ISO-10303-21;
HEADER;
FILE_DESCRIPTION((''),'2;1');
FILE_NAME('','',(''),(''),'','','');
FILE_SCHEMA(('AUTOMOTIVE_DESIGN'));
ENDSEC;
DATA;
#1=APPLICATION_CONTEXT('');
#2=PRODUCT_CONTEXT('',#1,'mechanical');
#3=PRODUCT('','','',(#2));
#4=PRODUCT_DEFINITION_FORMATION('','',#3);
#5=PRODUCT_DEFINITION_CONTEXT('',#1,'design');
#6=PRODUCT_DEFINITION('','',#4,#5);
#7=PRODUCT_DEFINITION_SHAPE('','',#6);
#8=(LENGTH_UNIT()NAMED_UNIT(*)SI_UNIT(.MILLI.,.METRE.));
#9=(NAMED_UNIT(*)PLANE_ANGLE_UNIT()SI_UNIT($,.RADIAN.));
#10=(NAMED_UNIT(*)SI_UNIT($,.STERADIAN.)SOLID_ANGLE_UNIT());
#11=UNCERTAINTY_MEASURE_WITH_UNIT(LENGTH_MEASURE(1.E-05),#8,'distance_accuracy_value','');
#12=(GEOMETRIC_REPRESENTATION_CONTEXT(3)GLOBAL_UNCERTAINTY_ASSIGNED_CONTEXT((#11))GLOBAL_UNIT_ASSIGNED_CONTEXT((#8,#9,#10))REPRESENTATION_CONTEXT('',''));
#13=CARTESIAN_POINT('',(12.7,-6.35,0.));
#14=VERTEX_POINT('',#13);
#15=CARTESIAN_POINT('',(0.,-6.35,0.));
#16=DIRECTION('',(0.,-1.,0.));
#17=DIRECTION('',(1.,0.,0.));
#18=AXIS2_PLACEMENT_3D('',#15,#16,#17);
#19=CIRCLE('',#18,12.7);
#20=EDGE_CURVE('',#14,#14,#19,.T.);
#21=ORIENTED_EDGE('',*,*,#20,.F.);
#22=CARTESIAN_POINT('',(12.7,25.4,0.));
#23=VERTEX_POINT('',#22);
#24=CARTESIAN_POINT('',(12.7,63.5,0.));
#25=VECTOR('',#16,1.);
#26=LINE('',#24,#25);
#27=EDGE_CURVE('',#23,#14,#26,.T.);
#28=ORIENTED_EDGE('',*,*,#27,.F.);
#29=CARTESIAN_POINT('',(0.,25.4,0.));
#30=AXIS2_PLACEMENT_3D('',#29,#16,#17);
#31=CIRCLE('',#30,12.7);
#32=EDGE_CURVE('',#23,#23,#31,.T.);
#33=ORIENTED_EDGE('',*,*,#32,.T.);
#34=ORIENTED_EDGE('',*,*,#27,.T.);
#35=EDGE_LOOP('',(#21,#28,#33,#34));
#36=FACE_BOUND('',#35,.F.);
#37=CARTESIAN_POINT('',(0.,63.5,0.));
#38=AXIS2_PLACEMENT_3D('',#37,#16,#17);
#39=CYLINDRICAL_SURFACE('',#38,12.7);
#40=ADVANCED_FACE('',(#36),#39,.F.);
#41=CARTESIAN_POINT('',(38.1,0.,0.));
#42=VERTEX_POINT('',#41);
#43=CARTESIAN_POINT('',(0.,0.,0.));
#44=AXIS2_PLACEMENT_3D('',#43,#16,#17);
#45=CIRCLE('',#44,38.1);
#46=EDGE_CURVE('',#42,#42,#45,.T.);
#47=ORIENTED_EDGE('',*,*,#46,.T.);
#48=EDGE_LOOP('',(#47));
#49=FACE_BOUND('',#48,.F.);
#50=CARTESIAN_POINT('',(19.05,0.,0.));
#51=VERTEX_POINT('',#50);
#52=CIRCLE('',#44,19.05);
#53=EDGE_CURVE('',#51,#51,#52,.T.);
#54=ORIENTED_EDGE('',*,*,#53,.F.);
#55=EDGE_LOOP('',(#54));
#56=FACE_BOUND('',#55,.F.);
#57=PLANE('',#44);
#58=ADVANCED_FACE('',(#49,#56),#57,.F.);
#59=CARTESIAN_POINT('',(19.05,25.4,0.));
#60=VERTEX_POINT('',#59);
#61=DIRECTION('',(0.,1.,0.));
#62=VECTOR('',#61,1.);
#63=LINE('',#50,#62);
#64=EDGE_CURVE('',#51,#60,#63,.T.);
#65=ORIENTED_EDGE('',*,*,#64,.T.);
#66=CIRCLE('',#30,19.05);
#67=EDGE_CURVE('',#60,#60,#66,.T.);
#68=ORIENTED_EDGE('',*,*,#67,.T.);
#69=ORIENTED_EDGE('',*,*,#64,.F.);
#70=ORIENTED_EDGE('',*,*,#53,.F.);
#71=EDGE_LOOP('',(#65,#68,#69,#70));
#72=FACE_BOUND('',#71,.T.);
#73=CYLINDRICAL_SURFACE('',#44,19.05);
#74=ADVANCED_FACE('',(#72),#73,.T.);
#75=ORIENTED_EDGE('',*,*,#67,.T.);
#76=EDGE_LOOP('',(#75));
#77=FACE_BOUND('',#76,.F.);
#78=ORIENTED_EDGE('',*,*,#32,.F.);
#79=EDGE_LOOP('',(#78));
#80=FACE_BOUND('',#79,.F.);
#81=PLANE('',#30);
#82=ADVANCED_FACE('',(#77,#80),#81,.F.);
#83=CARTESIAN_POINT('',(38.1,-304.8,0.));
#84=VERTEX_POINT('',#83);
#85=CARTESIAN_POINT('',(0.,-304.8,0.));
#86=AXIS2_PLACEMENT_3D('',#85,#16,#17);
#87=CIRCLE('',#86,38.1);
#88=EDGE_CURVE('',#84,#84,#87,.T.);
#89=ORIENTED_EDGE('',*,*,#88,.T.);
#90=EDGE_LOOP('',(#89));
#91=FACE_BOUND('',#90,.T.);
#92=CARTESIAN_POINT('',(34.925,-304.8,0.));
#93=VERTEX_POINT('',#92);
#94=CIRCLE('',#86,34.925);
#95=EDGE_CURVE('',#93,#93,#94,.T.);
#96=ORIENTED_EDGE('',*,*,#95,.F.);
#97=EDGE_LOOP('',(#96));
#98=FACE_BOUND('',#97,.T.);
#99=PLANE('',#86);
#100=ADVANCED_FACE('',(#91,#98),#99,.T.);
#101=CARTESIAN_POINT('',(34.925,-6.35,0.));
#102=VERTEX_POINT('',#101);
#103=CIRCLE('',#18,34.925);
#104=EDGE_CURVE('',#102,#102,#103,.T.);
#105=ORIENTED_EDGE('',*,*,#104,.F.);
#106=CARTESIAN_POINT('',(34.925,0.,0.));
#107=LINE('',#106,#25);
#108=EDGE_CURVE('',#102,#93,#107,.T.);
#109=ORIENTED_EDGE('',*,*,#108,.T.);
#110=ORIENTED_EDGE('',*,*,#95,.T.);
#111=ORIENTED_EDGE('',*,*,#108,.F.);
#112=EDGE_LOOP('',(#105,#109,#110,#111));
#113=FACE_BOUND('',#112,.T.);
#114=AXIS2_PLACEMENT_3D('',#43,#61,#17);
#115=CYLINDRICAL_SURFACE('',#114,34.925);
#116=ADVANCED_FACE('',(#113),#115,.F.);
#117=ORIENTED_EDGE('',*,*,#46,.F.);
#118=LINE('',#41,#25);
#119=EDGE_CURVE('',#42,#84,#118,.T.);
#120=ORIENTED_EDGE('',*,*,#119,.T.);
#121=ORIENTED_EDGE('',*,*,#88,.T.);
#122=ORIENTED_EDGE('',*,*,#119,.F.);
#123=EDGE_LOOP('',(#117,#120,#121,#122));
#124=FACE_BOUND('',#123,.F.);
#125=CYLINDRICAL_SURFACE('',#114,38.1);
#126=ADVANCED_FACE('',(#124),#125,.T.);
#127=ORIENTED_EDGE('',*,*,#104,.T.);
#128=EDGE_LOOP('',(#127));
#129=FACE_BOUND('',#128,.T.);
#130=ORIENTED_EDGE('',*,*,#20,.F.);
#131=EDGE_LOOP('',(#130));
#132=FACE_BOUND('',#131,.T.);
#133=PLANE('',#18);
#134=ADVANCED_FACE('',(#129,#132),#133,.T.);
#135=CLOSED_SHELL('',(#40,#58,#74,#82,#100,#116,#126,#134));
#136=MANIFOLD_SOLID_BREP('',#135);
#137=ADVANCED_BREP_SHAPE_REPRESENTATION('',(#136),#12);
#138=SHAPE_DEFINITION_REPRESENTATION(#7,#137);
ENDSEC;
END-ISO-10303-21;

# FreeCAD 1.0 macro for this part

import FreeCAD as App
import Part
import Sketcher
Q = App.Units.Quantity

doc = App.newDocument("Part")
body = doc.addObject("PartDesign::Body", "Body")

# Sketch on XZ plane
sketch1 = doc.addObject("Sketcher::SketchObject", "Sketch")
body.addObject(sketch1)
sketch1.AttachmentSupport = (doc.XZ_Plane, [""])
sketch1.MapMode = "FlatFace"
sketch1.addGeometry(Part.Circle(App.Vector(0, 0, 0), App.Vector(0, 0, 1), 38), False)
sketch1.addGeometry(Part.Circle(App.Vector(0, 0, 0), App.Vector(0, 0, 1), 35), False)
sketch1.addConstraint(Sketcher.Constraint("Coincident", 0, 3, -1, 1))
sketch1.addConstraint(Sketcher.Constraint("Coincident", 1, 3, -1, 1))
sketch1.addConstraint(Sketcher.Constraint("Diameter", 0, Q("3 in")))
sketch1.addConstraint(Sketcher.Constraint("Diameter", 1, Q("2.75 in")))
pad1 = doc.addObject("PartDesign::Pad", "Pad")
body.addObject(pad1)
pad1.Profile = sketch1
pad1.Length = Q("12 in")

# Sketch on XZ plane
sketch2 = doc.addObject("Sketcher::SketchObject", "Sketch001")
body.addObject(sketch2)
sketch2.AttachmentSupport = (doc.XZ_Plane, [""])
sketch2.MapMode = "FlatFace"
sketch2.addGeometry(Part.Circle(App.Vector(0, 0, 0), App.Vector(0, 0, 1), 35), False)
sketch2.addConstraint(Sketcher.Constraint("Coincident", 0, 3, -1, 1))
sketch2.addConstraint(Sketcher.Constraint("Diameter", 0, Q("2.75 in")))
pad2 = doc.addObject("PartDesign::Pad", "Pad001")
body.addObject(pad2)
pad2.Profile = sketch2
pad2.Length = Q("0.25 in")

# Sketch on XZ plane
sketch3 = doc.addObject("Sketcher::SketchObject", "Sketch002")
body.addObject(sketch3)
sketch3.AttachmentSupport = (doc.XZ_Plane, [""])
sketch3.MapMode = "FlatFace"
sketch3.addGeometry(Part.Circle(App.Vector(0, 0, 0), App.Vector(0, 0, 1), 19), False)
sketch3.addConstraint(Sketcher.Constraint("Coincident", 0, 3, -1, 1))
sketch3.addConstraint(Sketcher.Constraint("Diameter", 0, Q("1.5 in")))
pad3 = doc.addObject("PartDesign::Pad", "Pad002")
body.addObject(pad3)
pad3.Profile = sketch3
pad3.Length = Q("1 in")
pad3.Reversed = True

# Sketch on XZ plane
sketch4 = doc.addObject("Sketcher::SketchObject", "Sketch003")
body.addObject(sketch4)
sketch4.AttachmentSupport = (doc.XZ_Plane, [""])
sketch4.MapMode = "FlatFace"
sketch4.AttachmentOffset = App.Placement(App.Vector(0, 0, -1 * 25.4), App.Rotation())
sketch4.addGeometry(Part.Circle(App.Vector(0, 0, 0), App.Vector(0, 0, 1), 13), False)
sketch4.addConstraint(Sketcher.Constraint("Coincident", 0, 3, -1, 1))
sketch4.addConstraint(Sketcher.Constraint("Diameter", 0, Q("1 in")))
doc.recompute()
hole = doc.addObject("PartDesign::Hole", "Hole")
body.addObject(hole)
hole.Profile = sketch4
hole.ThreadType = "None"
hole.Diameter = Q("1 in")
hole.DepthType = "Dimension"
hole.Depth = Q("1.5 in")
hole.DrillPoint = "Flat"
hole.Reversed = True

doc.recompute()
